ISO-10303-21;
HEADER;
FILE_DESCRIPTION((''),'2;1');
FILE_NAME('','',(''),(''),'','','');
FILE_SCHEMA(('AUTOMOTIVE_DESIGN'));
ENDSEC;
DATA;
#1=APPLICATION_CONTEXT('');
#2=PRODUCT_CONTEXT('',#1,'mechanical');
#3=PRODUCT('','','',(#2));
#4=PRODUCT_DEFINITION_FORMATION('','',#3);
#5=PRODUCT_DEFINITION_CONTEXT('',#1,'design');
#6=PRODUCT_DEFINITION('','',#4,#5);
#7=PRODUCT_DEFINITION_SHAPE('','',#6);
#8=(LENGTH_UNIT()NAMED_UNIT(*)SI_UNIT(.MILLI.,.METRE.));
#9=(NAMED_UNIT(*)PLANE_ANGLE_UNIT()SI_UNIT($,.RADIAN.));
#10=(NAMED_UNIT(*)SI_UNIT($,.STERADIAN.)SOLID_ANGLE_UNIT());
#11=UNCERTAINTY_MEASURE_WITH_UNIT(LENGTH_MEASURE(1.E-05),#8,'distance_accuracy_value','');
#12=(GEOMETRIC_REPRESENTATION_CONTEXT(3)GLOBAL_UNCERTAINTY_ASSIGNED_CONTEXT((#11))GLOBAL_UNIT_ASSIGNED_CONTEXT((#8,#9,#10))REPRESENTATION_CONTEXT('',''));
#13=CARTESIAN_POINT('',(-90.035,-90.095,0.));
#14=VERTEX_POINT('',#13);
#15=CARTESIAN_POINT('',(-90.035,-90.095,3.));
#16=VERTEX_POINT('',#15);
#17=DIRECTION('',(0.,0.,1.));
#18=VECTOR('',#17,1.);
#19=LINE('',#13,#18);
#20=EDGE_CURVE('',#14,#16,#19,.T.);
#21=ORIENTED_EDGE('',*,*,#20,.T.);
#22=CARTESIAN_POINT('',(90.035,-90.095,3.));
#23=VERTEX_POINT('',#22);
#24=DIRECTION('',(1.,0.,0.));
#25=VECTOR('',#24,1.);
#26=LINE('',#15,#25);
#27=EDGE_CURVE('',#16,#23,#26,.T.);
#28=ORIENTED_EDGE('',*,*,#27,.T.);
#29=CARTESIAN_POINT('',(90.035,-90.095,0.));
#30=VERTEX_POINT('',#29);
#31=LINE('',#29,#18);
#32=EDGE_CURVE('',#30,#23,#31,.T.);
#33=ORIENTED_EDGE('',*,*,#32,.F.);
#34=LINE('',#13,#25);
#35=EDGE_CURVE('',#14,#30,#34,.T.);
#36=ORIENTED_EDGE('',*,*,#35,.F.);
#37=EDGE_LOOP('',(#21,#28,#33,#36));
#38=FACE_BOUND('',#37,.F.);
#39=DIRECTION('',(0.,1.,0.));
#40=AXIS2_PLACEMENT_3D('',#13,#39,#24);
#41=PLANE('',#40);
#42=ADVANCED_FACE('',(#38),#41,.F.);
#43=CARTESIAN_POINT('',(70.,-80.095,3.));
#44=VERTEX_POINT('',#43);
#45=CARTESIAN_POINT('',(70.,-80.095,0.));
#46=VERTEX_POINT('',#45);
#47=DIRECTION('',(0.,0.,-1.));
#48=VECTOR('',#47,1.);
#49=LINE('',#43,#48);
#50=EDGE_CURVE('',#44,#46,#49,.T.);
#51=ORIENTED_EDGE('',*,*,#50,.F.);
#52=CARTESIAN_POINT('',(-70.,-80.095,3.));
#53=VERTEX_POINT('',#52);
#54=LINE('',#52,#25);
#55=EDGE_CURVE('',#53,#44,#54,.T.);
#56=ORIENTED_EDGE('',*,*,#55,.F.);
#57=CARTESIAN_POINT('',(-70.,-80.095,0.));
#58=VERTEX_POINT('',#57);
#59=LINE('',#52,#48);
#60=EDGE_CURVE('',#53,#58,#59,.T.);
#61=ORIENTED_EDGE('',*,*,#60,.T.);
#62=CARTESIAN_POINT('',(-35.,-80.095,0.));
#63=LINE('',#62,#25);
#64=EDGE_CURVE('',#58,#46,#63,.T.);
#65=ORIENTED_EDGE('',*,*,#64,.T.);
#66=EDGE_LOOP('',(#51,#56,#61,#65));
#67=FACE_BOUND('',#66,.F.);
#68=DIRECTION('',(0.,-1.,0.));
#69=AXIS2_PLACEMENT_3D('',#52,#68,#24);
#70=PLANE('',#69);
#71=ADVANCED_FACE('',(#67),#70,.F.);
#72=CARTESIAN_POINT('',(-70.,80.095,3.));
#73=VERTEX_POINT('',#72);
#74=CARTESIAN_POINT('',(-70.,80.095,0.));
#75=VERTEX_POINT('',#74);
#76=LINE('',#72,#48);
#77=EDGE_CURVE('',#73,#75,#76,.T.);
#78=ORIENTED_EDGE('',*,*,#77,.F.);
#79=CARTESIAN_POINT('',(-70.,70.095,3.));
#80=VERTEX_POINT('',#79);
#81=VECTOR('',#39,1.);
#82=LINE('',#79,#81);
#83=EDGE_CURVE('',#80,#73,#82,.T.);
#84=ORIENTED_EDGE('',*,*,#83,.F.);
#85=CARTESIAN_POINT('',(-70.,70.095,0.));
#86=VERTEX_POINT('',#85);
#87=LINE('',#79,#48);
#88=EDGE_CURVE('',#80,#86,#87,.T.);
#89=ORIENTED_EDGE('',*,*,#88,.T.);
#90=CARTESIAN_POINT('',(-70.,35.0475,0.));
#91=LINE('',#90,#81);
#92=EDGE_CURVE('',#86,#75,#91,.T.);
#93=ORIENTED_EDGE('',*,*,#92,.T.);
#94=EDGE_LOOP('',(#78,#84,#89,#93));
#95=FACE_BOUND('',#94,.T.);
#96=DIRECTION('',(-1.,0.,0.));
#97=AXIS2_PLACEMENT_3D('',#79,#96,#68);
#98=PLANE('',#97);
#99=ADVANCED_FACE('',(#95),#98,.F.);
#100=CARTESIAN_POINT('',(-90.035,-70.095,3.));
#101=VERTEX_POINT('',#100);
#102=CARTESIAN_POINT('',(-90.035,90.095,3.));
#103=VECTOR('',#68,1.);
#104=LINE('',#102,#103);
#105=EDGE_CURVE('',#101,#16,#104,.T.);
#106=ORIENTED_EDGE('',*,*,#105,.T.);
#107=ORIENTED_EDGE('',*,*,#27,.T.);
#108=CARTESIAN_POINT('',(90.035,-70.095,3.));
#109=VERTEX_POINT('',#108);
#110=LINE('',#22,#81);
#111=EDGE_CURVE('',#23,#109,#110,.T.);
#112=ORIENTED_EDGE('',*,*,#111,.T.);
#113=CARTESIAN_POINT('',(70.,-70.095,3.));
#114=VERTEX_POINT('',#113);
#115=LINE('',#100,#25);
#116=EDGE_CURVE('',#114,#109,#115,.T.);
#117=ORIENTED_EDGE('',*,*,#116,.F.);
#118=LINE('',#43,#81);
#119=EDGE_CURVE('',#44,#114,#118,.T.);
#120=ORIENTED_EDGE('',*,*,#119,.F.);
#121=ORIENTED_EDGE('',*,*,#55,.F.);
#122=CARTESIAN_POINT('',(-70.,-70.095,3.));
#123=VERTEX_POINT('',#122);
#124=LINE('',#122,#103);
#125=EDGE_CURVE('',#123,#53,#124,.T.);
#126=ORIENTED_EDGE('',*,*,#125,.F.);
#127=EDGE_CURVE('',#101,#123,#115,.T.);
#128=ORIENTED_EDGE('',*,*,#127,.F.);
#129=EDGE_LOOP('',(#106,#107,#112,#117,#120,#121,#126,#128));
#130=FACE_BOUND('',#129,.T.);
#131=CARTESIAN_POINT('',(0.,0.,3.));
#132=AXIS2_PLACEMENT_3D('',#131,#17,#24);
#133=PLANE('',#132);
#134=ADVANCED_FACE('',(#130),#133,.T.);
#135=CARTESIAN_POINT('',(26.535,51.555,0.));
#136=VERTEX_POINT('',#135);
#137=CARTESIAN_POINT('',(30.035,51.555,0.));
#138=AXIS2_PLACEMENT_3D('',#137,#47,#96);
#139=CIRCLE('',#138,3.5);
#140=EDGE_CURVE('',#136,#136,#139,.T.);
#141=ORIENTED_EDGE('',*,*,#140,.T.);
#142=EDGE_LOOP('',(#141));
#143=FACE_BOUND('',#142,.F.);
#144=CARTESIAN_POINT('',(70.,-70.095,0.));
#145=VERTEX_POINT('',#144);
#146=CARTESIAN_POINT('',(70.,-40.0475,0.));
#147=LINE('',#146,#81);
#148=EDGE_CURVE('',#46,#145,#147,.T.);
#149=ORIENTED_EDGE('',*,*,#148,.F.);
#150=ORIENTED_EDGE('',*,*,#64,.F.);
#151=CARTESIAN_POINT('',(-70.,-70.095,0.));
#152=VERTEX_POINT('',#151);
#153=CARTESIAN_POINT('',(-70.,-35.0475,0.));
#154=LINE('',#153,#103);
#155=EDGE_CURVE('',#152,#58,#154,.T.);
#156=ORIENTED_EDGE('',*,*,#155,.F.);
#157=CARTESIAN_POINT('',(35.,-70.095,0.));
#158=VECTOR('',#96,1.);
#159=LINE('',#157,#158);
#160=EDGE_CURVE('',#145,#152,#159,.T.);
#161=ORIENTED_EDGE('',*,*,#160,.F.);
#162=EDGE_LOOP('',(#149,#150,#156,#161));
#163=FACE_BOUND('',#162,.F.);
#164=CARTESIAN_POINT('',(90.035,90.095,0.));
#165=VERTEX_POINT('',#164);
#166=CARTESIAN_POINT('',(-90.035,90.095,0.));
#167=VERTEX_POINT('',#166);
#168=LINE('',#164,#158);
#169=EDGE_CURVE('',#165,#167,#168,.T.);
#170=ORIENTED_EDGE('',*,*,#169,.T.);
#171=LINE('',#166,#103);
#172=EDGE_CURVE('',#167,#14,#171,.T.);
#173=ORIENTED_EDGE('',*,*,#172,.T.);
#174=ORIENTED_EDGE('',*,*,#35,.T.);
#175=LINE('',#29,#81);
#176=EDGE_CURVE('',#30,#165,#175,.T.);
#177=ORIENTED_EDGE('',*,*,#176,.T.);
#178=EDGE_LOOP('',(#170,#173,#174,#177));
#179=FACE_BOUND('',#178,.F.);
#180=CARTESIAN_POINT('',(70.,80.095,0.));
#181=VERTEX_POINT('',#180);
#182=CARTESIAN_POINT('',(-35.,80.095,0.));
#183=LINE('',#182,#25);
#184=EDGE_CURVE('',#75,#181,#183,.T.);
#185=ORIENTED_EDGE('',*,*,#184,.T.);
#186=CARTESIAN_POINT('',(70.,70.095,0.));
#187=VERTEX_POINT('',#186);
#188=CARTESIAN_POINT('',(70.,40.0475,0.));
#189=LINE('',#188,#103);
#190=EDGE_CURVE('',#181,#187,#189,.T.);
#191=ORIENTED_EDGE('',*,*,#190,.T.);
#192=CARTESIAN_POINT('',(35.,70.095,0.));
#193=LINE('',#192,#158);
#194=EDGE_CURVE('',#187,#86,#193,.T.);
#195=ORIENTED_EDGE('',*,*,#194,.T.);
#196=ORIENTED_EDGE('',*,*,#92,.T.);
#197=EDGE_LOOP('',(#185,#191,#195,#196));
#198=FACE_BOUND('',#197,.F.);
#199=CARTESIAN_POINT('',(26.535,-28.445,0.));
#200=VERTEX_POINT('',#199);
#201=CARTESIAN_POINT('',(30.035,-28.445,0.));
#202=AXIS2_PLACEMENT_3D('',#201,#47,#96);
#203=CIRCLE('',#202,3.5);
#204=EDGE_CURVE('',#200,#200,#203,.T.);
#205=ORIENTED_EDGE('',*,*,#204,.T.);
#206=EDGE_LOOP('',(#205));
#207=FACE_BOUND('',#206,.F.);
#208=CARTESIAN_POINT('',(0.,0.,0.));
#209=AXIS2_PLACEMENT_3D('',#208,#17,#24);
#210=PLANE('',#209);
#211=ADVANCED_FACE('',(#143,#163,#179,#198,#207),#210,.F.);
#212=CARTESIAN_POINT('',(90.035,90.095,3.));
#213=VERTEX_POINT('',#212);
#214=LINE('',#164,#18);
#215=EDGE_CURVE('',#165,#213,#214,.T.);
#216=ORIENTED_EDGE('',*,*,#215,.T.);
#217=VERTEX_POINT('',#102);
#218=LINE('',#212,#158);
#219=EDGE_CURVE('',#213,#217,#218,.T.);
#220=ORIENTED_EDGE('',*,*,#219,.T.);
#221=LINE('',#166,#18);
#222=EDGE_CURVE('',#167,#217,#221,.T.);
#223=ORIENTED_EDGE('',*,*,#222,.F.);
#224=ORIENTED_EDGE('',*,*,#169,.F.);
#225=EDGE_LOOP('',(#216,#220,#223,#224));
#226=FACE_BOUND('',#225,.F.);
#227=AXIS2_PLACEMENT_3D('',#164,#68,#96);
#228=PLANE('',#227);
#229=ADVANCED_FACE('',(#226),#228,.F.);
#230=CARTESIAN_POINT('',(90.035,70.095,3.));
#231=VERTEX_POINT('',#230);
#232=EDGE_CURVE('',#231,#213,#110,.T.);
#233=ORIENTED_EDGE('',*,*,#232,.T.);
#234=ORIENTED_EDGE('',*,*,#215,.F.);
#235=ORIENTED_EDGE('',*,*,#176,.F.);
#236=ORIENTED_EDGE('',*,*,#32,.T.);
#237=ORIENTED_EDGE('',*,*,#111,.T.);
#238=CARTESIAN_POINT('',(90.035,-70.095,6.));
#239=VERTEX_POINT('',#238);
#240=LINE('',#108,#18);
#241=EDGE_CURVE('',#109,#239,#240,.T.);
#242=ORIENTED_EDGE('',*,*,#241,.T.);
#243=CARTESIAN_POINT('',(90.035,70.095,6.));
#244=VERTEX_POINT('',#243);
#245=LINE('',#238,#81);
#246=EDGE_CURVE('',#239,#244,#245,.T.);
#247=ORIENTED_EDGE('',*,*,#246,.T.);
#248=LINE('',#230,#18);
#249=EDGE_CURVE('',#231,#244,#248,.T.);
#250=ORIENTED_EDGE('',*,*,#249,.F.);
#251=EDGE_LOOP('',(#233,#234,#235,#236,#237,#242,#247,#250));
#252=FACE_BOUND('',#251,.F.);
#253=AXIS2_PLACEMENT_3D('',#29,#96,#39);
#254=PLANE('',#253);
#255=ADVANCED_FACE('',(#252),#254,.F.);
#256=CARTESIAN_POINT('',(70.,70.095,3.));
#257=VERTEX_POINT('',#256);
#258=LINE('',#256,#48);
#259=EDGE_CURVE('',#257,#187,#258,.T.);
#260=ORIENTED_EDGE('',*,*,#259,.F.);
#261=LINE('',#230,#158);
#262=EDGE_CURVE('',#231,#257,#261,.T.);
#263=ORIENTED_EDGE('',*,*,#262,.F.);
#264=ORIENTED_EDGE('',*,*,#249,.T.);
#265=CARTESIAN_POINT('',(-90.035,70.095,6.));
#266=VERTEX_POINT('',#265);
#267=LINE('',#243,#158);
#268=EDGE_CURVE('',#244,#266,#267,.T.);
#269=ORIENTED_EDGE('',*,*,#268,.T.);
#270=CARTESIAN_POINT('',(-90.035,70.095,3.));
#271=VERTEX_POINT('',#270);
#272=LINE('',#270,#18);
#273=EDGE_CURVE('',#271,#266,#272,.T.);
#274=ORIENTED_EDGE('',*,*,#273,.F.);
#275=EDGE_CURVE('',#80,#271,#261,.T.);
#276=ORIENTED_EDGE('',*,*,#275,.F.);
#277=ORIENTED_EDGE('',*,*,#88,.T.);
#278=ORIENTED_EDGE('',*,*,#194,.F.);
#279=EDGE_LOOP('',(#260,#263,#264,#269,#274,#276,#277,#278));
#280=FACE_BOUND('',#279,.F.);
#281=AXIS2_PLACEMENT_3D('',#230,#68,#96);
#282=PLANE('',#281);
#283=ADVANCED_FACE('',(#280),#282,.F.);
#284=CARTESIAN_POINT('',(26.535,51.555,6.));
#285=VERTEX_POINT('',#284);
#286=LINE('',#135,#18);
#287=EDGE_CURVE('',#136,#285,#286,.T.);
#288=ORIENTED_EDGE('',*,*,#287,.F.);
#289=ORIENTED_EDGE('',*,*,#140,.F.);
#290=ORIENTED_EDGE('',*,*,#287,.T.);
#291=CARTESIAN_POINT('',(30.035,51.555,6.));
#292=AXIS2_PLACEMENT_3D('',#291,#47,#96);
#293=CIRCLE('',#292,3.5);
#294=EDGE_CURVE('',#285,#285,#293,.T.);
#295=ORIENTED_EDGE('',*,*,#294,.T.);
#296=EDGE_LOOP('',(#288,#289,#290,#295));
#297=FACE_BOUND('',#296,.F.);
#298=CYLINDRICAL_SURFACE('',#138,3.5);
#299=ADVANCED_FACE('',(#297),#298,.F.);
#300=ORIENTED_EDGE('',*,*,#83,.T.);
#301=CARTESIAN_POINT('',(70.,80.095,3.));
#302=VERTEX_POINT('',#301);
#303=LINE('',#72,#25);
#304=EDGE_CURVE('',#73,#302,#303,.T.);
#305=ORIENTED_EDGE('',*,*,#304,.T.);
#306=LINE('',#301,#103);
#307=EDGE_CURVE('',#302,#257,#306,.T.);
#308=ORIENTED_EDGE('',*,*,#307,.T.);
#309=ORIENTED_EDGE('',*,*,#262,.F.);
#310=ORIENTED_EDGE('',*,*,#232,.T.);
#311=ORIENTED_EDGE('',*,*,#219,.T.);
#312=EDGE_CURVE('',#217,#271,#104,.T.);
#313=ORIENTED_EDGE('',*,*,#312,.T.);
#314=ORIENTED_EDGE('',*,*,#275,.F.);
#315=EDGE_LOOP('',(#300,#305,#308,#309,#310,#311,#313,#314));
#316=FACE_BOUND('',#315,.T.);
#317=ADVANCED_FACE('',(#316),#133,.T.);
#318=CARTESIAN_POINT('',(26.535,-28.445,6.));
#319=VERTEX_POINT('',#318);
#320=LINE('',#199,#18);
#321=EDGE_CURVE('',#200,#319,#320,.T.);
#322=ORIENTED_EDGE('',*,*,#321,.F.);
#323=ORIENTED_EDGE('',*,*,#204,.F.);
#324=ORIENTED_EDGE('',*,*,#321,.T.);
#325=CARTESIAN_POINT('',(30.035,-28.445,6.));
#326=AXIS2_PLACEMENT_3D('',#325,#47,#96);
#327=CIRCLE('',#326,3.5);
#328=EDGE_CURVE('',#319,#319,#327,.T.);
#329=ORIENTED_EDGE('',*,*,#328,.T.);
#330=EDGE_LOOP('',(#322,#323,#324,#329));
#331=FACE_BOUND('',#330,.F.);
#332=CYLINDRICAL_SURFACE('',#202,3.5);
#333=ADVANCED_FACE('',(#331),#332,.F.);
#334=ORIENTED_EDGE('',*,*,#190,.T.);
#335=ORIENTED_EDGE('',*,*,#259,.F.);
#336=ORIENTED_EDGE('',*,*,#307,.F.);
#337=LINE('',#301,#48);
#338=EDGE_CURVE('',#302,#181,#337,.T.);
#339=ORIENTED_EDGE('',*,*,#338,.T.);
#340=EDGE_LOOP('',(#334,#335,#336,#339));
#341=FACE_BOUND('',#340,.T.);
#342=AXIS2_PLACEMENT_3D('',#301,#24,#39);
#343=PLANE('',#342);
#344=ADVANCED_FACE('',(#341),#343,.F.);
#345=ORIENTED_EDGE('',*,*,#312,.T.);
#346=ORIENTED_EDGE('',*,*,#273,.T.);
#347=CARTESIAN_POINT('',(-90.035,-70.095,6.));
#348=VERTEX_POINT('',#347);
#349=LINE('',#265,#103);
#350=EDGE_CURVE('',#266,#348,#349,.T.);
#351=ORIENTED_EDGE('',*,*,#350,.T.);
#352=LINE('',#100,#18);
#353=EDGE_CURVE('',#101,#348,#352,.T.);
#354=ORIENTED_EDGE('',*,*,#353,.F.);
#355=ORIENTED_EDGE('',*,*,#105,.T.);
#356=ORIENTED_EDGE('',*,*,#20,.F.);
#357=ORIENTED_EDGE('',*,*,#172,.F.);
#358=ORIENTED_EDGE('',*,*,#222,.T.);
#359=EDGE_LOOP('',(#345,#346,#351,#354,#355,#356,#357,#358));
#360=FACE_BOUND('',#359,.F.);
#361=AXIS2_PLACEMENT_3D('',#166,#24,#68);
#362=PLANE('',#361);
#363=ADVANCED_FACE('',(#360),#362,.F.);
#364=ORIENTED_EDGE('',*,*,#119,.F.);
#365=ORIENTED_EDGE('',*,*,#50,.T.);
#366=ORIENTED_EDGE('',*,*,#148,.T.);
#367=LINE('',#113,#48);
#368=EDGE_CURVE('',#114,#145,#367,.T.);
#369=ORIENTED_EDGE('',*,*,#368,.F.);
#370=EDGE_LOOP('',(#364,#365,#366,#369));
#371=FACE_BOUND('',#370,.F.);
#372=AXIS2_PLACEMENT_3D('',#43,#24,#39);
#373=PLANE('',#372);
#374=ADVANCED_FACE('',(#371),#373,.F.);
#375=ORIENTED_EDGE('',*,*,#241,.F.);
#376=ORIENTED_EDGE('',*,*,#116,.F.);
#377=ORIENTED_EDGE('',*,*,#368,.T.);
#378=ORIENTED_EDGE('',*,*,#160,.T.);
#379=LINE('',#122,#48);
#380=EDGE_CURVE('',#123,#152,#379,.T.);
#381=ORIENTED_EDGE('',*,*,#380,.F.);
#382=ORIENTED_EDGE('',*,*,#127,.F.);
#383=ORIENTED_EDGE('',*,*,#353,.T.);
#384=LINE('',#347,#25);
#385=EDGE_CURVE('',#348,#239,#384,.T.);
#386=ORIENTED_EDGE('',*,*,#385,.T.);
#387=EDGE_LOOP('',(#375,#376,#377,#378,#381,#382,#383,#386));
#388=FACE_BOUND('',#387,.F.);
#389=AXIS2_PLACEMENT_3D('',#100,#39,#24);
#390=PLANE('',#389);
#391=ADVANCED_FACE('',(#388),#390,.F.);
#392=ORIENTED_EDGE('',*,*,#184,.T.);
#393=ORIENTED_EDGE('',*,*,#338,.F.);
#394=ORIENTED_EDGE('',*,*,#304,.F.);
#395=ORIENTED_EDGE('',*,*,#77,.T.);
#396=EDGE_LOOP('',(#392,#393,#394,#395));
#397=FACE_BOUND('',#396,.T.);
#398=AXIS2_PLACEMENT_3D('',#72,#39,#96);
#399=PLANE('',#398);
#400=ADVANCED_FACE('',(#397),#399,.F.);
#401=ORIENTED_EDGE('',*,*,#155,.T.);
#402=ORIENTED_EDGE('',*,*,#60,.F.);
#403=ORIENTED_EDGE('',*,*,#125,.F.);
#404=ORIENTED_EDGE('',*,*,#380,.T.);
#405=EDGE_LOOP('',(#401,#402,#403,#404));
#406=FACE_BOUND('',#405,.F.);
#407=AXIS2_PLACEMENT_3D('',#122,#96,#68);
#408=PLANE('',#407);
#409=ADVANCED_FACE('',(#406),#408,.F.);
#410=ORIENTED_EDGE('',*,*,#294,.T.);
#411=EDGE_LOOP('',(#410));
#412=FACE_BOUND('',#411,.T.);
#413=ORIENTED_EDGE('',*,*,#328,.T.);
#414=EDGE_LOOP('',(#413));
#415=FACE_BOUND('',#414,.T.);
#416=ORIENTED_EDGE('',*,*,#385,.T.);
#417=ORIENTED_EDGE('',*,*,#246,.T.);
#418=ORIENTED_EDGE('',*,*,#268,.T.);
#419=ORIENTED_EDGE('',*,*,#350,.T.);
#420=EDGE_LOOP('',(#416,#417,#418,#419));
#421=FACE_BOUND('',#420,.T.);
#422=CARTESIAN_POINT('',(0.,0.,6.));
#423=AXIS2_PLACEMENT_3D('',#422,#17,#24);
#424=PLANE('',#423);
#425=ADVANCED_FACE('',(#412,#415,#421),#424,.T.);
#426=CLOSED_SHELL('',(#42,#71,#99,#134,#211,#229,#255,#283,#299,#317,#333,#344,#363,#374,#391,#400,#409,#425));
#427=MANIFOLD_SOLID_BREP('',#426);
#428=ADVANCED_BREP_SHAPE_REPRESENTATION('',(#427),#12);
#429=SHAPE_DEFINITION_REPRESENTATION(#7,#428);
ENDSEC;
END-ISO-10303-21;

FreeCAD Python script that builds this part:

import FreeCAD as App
import Part
import Sketcher

V = App.Vector


def add_polygon(sketch, points):
    """Adds a closed chain of lines whose ends are joined by coincident constraints."""
    first, n = sketch.GeometryCount, len(points)
    for a, b in zip(points, points[1:] + points[:1]):
        sketch.addGeometry(Part.LineSegment(App.Vector(*a, 0), App.Vector(*b, 0)), False)
    for i in range(n):
        sketch.addConstraint(Sketcher.Constraint("Coincident", first + i, 2, first + (i + 1) % n, 1))

doc = App.newDocument("Part")
params = doc.addObject("Spreadsheet::Sheet", "Params")
for row, (alias, value) in enumerate([
    ("sketch1_height", "180.19 mm"),
    ("pad1_length", "3 mm"),
    ("sketch2_width", "180.07 mm"),
    ("sketch2_height", "140.19 mm"),
    ("pad2_length", "3 mm"),
    ("sketch3_height", "10 mm"),
    ("sketch4_diameter", "7 mm"),
], start=1):
    params.set(f"A{row}", alias)
    params.set(f"B{row}", "=" + value)
    params.setAlias(f"B{row}", alias)

body = doc.addObject("PartDesign::Body", "Body")

# Sketch on XY plane
sketch1 = body.newObject("Sketcher::SketchObject", "Sketch")
sketch1.AttachmentSupport = (doc.getObject("XY_Plane"), [""])
sketch1.MapMode = "FlatFace"
add_polygon(sketch1, [(-90.035, 90.095), (-90.035, -90.095), (90.035, -90.095), (90.035, 90.095)])  # lines 0-3
sketch1.addConstraint([
    Sketcher.Constraint("Vertical", 0),
    Sketcher.Constraint("Horizontal", 1),
    Sketcher.Constraint("Vertical", 2),
    Sketcher.Constraint("Horizontal", 3),
    Sketcher.Constraint("Symmetric", 0, 2, 2, 2, -1, 1),
    Sketcher.Constraint("DistanceX", 0, 2, -1, 1, 90.035),
    Sketcher.Constraint("DistanceY", 0, 2, 0, 1, 180.19),
])
sketch1.setExpression("Constraints[10]", "Params.sketch1_height")
pad1 = body.newObject("PartDesign::Pad", "Pad")
pad1.Profile = sketch1
pad1.setExpression("Length", "Params.pad1_length")

# Sketch on XY plane
sketch2 = body.newObject("Sketcher::SketchObject", "Sketch001")
sketch2.AttachmentSupport = (doc.getObject("XY_Plane"), [""])
sketch2.MapMode = "FlatFace"
sketch2.AttachmentOffset = App.Placement(V(0, 0, 3), App.Rotation())
add_polygon(sketch2, [(-90.035, 70.095), (-90.035, -70.095), (90.035, -70.095), (90.035, 70.095)])  # lines 0-3
sketch2.addConstraint([
    Sketcher.Constraint("Vertical", 0),
    Sketcher.Constraint("Horizontal", 1),
    Sketcher.Constraint("Vertical", 2),
    Sketcher.Constraint("Horizontal", 3),
    Sketcher.Constraint("Symmetric", 0, 2, 2, 2, -1, 1),
    Sketcher.Constraint("DistanceX", 1, 1, 1, 2, 180.07),
    Sketcher.Constraint("DistanceY", 0, 2, 0, 1, 140.19),
])
sketch2.setExpression("Constraints[9]", "Params.sketch2_width")
sketch2.setExpression("Constraints[10]", "Params.sketch2_height")
pad2 = body.newObject("PartDesign::Pad", "Pad001")
pad2.Profile = sketch2
pad2.setExpression("Length", "Params.pad2_length")

# Sketch on XY plane
sketch3 = body.newObject("Sketcher::SketchObject", "Sketch002")
sketch3.AttachmentSupport = (doc.getObject("XY_Plane"), [""])
sketch3.MapMode = "FlatFace"
sketch3.AttachmentOffset = App.Placement(V(0, 0, 3), App.Rotation())
add_polygon(sketch3, [(-70, -70.095), (-70, -80.095), (70, -80.095), (70, -70.095)])  # lines 0-3
sketch3.addConstraint([
    Sketcher.Constraint("Vertical", 0),
    Sketcher.Constraint("Horizontal", 1),
    Sketcher.Constraint("Vertical", 2),
    Sketcher.Constraint("Horizontal", 3),
    Sketcher.Constraint("DistanceX", 0, 2, -1, 1, 70.0),
    Sketcher.Constraint("DistanceX", -1, 1, 1, 2, 70.0),
    Sketcher.Constraint("DistanceY", 0, 2, 0, 1, 10.0),
    Sketcher.Constraint("DistanceY", 0, 2, -1, 1, 80.095),
])
sketch3.setExpression("Constraints[10]", "Params.sketch3_height")
pocket1 = body.newObject("PartDesign::Pocket", "Pocket")
pocket1.Profile = sketch3
pocket1.Type = "ThroughAll"
doc.recompute()

mirrored = body.newObject("PartDesign::Mirrored", "Mirrored")
mirrored.Originals = [pocket1]
mirrored.MirrorPlane = (doc.getObject("XZ_Plane"), [""])
body.Tip = mirrored

# Sketch on XY plane
sketch4 = body.newObject("Sketcher::SketchObject", "Sketch003")
sketch4.AttachmentSupport = (doc.getObject("XY_Plane"), [""])
sketch4.MapMode = "FlatFace"
sketch4.addGeometry([
    Part.Circle(V(30.035, -28.445, 0), V(0, 0, 1), 3.5),
    Part.Circle(V(30.035, 51.555, 0), V(0, 0, 1), 3.5),
], False)
sketch4.addConstraint([
    Sketcher.Constraint("Equal", 0, 1),
    Sketcher.Constraint("Vertical", 0, 3, 1, 3),
    Sketcher.Constraint("Diameter", 0, 7.0),
    Sketcher.Constraint("DistanceX", -1, 1, 0, 3, 30.035),
    Sketcher.Constraint("DistanceY", 0, 3, 1, 3, 80.0),
    Sketcher.Constraint("DistanceY", 0, 3, -1, 1, 28.445),
])
sketch4.setExpression("Constraints[2]", "Params.sketch4_diameter")
pocket2 = body.newObject("PartDesign::Pocket", "Pocket001")
pocket2.Profile = sketch4
pocket2.Type = "ThroughAll"
pocket2.Reversed = True

doc.recompute()
